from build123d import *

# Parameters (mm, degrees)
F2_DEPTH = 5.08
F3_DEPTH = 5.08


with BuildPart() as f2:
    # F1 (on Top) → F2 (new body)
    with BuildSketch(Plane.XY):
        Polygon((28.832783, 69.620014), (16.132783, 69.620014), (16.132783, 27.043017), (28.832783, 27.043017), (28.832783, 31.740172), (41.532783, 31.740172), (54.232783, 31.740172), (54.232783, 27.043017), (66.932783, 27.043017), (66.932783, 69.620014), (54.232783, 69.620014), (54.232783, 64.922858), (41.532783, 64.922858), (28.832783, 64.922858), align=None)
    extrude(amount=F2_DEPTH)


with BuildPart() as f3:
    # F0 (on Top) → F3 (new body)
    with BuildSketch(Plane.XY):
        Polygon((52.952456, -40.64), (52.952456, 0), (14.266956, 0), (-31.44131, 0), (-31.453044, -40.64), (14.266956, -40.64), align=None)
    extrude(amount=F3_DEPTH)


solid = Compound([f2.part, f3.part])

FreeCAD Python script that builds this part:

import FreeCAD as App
import Part
import Sketcher
from FreeCAD import Vector
Q = App.Units.Quantity

doc = App.newDocument("Part")
body = doc.addObject("PartDesign::Body", "Body")

sketch1 = doc.addObject("Sketcher::SketchObject", "Sketch")
body.addObject(sketch1)
sketch1.AttachmentSupport = (doc.XY_Plane, [""])
sketch1.MapMode = "FlatFace"
sketch1.addGeometry([
    Part.LineSegment(Vector(28.8, 69.6, 0), Vector(16.1, 69.6, 0)),
    Part.LineSegment(Vector(16.1, 69.6, 0), Vector(16.1, 27, 0)),
    Part.LineSegment(Vector(16.1, 27, 0), Vector(28.8, 27, 0)),
    Part.LineSegment(Vector(28.8, 27, 0), Vector(28.8, 31.7, 0)),
    Part.LineSegment(Vector(28.8, 31.7, 0), Vector(54.2, 31.7, 0)),
    Part.LineSegment(Vector(54.2, 31.7, 0), Vector(54.2, 27, 0)),
    Part.LineSegment(Vector(54.2, 27, 0), Vector(66.9, 27, 0)),
    Part.LineSegment(Vector(66.9, 27, 0), Vector(66.9, 69.6, 0)),
    Part.LineSegment(Vector(66.9, 69.6, 0), Vector(54.2, 69.6, 0)),
    Part.LineSegment(Vector(54.2, 69.6, 0), Vector(54.2, 64.9, 0)),
    Part.LineSegment(Vector(54.2, 64.9, 0), Vector(28.8, 64.9, 0)),
    Part.LineSegment(Vector(28.8, 64.9, 0), Vector(28.8, 69.6, 0)),
], False)
sketch1.addConstraint([
    Sketcher.Constraint("Coincident", 0, 2, 1, 1),
    Sketcher.Constraint("Coincident", 1, 2, 2, 1),
    Sketcher.Constraint("Coincident", 2, 2, 3, 1),
    Sketcher.Constraint("Coincident", 3, 2, 4, 1),
    Sketcher.Constraint("Coincident", 4, 2, 5, 1),
    Sketcher.Constraint("Coincident", 5, 2, 6, 1),
    Sketcher.Constraint("Coincident", 6, 2, 7, 1),
    Sketcher.Constraint("Coincident", 7, 2, 8, 1),
    Sketcher.Constraint("Coincident", 8, 2, 9, 1),
    Sketcher.Constraint("Coincident", 9, 2, 10, 1),
    Sketcher.Constraint("Coincident", 10, 2, 11, 1),
    Sketcher.Constraint("Coincident", 11, 2, 0, 1),
    Sketcher.Constraint("Horizontal", 0),
    Sketcher.Constraint("Vertical", 1),
    Sketcher.Constraint("Horizontal", 2),
    Sketcher.Constraint("Vertical", 3),
    Sketcher.Constraint("Horizontal", 4),
    Sketcher.Constraint("Vertical", 5),
    Sketcher.Constraint("Horizontal", 6),
    Sketcher.Constraint("Vertical", 7),
    Sketcher.Constraint("Horizontal", 8),
    Sketcher.Constraint("Vertical", 9),
    Sketcher.Constraint("Horizontal", 10),
    Sketcher.Constraint("Vertical", 11),
    Sketcher.Constraint("Horizontal", 2, 2, 5, 2),
    Sketcher.Constraint("Horizontal", 0, 2, 7, 2),
    Sketcher.Constraint("Vertical", 5, 2, 8, 2),
    Sketcher.Constraint("Vertical", 3, 2, 10, 2),
    Sketcher.Constraint("Equal", 2, 6),
    Sketcher.Constraint("Equal", 5, 9),
    Sketcher.Constraint("DistanceX", 4, 1, 4, 2, Q("1 in")),
    Sketcher.Constraint("DistanceX", 0, 2, 0, 1, Q("0.5 in")),
    Sketcher.Constraint("DistanceY", 1, 2, 1, 1, Q("42.576997 mm")),
    Sketcher.Constraint("DistanceY", 3, 1, 3, 2, Q("4.697155 mm")),
    Sketcher.Constraint("DistanceY", -1, 1, 9, 2, Q("64.922858 mm")),
    Sketcher.Constraint("DistanceX", -1, 1, 0, 2, Q("16.132783 mm")),
])
pad1 = doc.addObject("PartDesign::Pad", "Pad")
body.addObject(pad1)
pad1.Profile = sketch1
pad1.Length = Q("0.2 in")
body2 = doc.addObject("PartDesign::Body", "Body001")

sketch2 = doc.addObject("Sketcher::SketchObject", "Sketch001")
body2.addObject(sketch2)
sketch2.AttachmentSupport = (doc.getObject("XY_Plane001"), [""])
sketch2.MapMode = "FlatFace"
sketch2.addGeometry([
    Part.LineSegment(Vector(53, -41, 0), Vector(53, 0, 0)),
    Part.LineSegment(Vector(53, 0, 0), Vector(-31, 0, 0)),
    Part.LineSegment(Vector(-31, 0, 0), Vector(-31, -41, 0)),
    Part.LineSegment(Vector(-31, -41, 0), Vector(53, -41, 0)),
], False)
sketch2.addConstraint([
    Sketcher.Constraint("Coincident", 0, 2, 1, 1),
    Sketcher.Constraint("Coincident", 1, 2, 2, 1),
    Sketcher.Constraint("Coincident", 2, 2, 3, 1),
    Sketcher.Constraint("Coincident", 3, 2, 0, 1),
    Sketcher.Constraint("Vertical", 0),
    Sketcher.Constraint("Horizontal", 1),
    Sketcher.Constraint("Horizontal", 3),
    Sketcher.Constraint("PointOnObject", 0, 2, -1),
    Sketcher.Constraint("DistanceY", 0, 1, 0, 2, Q("1.6 in")),
    Sketcher.Constraint("DistanceX", 3, 1, 3, 2, Q("84.4055 mm")),
    Sketcher.Constraint("DistanceX", 1, 2, 1, 1, Q("84.393766 mm")),
    Sketcher.Constraint("DistanceX", 1, 2, -1, 1, Q("31.44131 mm")),
])
pad2 = doc.addObject("PartDesign::Pad", "Pad001")
body2.addObject(pad2)
pad2.Profile = sketch2
pad2.Length = Q("0.2 in")

doc.recompute()
